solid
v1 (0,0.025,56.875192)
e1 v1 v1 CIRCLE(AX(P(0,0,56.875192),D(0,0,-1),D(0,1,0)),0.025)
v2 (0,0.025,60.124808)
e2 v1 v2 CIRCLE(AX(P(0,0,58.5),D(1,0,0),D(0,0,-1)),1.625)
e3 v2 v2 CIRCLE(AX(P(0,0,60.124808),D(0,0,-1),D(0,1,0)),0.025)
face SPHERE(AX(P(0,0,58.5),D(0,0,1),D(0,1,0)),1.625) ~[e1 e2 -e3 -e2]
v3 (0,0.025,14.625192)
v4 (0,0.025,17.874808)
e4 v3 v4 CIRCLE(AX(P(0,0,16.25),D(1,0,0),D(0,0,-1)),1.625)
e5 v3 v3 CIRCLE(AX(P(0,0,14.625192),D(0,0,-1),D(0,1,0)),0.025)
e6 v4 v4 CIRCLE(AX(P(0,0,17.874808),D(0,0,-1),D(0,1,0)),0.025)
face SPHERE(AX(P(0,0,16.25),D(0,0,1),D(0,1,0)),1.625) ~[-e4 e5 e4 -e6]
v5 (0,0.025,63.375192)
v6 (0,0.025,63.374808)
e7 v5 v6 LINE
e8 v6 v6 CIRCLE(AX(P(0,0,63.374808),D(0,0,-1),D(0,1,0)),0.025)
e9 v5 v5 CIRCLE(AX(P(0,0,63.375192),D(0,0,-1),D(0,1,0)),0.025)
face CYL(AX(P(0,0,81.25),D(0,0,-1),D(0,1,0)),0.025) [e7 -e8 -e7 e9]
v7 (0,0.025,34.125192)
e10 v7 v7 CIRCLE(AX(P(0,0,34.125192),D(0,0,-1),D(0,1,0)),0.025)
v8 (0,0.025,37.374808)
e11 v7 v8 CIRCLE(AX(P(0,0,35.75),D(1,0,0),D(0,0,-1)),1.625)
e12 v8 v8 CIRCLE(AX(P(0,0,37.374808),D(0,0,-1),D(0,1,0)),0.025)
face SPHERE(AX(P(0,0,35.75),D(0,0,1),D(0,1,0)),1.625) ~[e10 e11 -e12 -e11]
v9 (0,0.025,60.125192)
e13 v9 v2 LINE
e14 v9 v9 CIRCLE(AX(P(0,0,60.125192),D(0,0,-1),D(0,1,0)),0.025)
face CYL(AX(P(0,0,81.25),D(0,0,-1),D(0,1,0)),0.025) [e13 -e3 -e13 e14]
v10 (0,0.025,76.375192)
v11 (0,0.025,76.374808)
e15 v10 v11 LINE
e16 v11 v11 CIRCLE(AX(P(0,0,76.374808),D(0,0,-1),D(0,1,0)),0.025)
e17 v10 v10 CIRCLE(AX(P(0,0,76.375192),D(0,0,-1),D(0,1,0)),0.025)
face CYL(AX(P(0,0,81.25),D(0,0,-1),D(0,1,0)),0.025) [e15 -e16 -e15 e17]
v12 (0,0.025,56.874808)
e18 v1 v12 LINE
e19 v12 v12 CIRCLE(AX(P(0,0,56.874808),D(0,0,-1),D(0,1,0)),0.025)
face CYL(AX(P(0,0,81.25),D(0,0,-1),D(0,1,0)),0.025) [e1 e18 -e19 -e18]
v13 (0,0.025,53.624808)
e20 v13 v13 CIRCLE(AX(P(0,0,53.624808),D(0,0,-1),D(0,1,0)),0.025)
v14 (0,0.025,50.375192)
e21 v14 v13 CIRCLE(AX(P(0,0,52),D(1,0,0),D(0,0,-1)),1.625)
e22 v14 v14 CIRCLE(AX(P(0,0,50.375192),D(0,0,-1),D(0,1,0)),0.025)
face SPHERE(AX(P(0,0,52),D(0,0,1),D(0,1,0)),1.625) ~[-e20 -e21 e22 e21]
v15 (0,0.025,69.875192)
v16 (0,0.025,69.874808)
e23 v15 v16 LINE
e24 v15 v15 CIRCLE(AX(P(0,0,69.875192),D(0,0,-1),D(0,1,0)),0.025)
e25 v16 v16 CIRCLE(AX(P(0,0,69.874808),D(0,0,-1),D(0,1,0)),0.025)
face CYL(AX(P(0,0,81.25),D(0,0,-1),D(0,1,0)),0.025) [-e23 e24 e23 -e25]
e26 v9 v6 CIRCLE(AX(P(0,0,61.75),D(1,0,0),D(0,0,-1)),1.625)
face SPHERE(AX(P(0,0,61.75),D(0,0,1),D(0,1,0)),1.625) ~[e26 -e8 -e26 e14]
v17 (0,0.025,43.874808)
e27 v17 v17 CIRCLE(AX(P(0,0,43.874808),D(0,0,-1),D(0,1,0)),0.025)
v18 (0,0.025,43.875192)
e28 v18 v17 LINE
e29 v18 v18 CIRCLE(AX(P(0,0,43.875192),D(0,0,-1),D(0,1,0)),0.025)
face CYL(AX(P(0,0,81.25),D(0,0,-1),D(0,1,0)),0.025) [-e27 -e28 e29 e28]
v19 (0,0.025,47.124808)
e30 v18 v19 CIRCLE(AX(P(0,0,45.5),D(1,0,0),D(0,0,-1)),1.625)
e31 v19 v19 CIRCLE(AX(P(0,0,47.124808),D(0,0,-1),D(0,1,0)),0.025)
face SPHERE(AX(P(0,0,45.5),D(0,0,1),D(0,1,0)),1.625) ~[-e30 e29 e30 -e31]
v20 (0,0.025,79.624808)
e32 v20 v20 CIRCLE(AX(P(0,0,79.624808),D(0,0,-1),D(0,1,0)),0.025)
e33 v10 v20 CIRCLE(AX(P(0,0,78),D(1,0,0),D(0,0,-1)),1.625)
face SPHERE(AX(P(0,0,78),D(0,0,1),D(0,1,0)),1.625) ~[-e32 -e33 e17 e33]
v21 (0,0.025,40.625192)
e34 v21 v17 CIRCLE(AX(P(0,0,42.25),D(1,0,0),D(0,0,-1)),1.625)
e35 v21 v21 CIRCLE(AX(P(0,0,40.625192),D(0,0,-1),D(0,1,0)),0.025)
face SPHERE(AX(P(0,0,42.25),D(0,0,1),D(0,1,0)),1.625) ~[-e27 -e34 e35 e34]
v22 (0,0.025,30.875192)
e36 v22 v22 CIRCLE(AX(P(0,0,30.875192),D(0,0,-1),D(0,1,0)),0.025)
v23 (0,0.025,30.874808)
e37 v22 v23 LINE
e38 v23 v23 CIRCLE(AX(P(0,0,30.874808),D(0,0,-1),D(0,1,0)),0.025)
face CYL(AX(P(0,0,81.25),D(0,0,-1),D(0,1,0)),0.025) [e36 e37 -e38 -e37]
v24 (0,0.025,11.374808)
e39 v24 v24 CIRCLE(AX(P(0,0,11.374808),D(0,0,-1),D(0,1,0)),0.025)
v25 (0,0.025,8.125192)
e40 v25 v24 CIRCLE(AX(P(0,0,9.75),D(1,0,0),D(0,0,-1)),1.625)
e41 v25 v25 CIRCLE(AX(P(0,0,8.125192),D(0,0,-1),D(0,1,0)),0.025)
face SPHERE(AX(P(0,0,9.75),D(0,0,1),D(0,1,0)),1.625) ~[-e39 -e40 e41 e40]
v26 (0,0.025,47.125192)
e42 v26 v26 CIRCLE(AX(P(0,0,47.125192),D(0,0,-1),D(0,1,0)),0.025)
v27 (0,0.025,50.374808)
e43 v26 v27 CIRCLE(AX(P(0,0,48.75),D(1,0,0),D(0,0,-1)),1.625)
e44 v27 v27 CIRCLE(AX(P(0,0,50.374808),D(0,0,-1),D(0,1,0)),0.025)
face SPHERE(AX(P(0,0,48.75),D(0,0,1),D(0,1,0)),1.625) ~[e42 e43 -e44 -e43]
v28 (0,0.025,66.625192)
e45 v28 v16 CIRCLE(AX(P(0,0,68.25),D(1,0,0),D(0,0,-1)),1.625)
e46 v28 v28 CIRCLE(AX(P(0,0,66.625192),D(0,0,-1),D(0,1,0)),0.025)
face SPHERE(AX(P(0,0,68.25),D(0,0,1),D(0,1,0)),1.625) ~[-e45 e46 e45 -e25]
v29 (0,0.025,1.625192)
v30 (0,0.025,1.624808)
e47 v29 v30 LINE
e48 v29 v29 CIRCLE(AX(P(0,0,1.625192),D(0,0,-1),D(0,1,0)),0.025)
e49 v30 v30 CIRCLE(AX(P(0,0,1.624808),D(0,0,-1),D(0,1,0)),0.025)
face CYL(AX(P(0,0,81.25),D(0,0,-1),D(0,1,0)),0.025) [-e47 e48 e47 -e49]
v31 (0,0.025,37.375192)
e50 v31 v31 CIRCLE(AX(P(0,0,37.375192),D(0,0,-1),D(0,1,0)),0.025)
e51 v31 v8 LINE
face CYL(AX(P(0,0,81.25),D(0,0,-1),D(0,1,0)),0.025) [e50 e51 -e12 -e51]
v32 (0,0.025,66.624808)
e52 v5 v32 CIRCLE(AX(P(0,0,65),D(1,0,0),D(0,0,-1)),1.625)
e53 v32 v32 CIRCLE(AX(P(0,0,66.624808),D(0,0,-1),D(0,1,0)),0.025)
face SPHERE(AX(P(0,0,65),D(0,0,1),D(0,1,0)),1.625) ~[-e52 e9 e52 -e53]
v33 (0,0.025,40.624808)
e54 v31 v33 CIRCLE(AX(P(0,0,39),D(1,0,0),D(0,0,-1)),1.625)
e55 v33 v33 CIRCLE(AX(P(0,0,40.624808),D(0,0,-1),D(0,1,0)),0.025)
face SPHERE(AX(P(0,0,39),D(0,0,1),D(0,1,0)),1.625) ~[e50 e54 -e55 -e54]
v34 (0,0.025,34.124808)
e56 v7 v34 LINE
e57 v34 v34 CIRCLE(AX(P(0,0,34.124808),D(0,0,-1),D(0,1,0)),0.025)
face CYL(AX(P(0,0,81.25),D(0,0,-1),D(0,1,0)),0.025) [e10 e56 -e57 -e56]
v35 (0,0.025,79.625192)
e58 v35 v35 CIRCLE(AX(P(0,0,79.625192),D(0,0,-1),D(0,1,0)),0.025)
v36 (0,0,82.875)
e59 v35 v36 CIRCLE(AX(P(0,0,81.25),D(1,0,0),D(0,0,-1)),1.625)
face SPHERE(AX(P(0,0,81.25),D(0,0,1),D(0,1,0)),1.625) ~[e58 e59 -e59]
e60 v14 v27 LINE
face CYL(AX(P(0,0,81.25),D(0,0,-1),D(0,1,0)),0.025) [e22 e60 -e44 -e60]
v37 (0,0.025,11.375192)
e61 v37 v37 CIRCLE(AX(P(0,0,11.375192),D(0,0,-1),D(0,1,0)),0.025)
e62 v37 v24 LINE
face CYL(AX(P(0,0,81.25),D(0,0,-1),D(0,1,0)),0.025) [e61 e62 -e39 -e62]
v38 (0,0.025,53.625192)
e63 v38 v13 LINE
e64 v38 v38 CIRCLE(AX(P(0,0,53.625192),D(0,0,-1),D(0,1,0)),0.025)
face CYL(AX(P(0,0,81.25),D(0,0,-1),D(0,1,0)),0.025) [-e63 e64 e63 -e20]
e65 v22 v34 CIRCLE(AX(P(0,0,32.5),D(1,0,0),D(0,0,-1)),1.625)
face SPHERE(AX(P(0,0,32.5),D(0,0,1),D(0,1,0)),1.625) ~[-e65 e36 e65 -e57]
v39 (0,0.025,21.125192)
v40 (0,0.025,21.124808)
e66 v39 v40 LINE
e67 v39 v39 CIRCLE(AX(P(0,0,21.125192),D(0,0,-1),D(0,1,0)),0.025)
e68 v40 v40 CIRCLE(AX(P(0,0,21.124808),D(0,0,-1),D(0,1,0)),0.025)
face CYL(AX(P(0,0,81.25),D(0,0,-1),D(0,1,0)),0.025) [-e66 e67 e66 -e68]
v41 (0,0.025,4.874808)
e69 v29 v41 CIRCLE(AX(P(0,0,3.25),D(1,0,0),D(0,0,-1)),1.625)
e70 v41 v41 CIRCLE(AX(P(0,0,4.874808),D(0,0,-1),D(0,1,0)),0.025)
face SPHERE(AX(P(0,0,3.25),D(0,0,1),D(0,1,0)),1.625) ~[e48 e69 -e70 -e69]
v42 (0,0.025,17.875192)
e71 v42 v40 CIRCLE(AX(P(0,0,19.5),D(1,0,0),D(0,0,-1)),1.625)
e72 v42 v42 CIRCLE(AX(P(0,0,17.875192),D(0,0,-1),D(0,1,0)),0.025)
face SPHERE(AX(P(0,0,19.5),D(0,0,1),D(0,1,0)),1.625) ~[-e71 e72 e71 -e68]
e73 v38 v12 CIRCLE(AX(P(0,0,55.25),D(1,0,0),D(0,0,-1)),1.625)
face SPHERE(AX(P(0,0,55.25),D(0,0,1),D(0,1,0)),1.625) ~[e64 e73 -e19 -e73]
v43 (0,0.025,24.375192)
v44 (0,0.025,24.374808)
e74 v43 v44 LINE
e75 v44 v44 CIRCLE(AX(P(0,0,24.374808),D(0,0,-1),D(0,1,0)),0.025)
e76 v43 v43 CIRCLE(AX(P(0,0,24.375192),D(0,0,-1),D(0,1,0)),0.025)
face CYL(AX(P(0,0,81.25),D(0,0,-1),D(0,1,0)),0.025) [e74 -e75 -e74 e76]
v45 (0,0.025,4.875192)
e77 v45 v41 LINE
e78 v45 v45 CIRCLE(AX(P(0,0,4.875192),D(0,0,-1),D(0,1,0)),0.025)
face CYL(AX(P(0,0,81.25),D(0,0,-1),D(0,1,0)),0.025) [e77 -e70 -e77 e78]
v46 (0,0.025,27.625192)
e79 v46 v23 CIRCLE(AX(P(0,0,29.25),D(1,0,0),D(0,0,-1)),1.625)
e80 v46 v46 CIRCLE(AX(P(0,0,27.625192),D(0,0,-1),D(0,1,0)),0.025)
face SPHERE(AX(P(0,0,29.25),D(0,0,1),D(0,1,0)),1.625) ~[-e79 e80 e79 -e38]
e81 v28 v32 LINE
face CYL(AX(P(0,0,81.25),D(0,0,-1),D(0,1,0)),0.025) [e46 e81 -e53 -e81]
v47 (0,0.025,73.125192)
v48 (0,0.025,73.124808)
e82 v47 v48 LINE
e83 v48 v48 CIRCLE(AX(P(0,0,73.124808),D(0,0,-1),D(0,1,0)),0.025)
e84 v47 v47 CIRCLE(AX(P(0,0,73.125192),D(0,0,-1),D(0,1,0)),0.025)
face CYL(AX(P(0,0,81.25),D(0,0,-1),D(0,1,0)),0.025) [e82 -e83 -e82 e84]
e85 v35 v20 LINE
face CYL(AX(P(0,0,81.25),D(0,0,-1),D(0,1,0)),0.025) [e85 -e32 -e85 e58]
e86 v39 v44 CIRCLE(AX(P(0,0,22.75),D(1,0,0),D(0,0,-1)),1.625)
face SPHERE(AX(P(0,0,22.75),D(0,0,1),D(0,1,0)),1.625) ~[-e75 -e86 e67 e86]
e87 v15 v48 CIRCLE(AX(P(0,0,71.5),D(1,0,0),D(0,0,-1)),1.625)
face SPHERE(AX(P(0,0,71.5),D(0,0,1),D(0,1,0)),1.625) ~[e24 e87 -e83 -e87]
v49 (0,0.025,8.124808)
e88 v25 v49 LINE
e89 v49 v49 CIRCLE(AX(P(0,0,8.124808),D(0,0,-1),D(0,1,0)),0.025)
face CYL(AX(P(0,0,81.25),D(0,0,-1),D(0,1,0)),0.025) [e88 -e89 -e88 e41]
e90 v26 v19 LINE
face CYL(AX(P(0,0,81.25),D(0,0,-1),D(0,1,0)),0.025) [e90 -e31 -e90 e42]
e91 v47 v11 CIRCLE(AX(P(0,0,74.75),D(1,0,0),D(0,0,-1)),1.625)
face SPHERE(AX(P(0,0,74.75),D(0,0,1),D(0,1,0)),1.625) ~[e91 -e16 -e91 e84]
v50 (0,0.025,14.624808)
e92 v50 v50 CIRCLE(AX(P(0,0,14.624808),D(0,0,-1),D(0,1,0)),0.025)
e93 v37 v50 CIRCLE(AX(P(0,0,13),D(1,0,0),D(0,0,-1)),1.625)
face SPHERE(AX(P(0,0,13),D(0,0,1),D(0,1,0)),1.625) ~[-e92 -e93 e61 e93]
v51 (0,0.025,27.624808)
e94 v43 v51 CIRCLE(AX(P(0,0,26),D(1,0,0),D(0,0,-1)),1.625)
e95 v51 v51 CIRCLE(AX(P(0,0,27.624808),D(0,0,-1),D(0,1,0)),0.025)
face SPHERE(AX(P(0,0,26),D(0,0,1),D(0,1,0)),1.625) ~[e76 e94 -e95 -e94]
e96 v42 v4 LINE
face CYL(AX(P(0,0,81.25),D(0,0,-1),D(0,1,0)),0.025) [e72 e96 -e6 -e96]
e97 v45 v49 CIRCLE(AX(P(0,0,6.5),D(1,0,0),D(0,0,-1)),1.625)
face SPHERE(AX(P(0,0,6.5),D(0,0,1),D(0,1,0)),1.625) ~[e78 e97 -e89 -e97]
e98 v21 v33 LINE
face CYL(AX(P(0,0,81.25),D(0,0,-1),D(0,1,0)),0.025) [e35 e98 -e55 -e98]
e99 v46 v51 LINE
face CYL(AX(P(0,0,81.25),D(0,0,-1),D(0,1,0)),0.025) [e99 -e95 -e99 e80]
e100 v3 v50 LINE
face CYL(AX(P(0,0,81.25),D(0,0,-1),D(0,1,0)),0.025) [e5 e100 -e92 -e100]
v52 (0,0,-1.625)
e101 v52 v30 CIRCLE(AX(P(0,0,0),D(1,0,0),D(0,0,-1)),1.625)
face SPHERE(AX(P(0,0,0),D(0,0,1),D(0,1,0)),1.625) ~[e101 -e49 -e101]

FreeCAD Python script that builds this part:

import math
import FreeCAD as App
import Part
import Sketcher
Q = App.Units.Quantity

doc = App.newDocument("Part")
body = doc.addObject("PartDesign::Body", "Body")

# Sketch on YZ plane
sketch1 = body.newObject("Sketcher::SketchObject", "Sketch")
sketch1.AttachmentSupport = (doc.getObject("YZ_Plane"), [""])
sketch1.MapMode = "FlatFace"
sketch1.addGeometry([
    Part.LineSegment(App.Vector(0, 81.25, 0), App.Vector(0, 0, 0)),
    Part.LineSegment(App.Vector(0, 0, 0), App.Vector(0.025, 0, 0)),
    Part.LineSegment(App.Vector(0.025, 0, 0), App.Vector(0.025, 81.25, 0)),
    Part.LineSegment(App.Vector(0.025, 81.25, 0), App.Vector(0, 81.25, 0)),
], False)
sketch1.addConstraint([
    Sketcher.Constraint("Coincident", 0, 2, 1, 1),
    Sketcher.Constraint("Coincident", 1, 2, 2, 1),
    Sketcher.Constraint("Coincident", 2, 2, 3, 1),
    Sketcher.Constraint("Coincident", 3, 2, 0, 1),
    Sketcher.Constraint("Vertical", 0),
    Sketcher.Constraint("Horizontal", 1),
    Sketcher.Constraint("Vertical", 2),
    Sketcher.Constraint("Horizontal", 3),
    Sketcher.Constraint("Coincident", 0, 2, -1, 1),
    Sketcher.Constraint("DistanceY", 0, 2, 0, 1, Q("81.25 mm")),
    Sketcher.Constraint("DistanceX", 1, 1, 1, 2, Q("0.025 mm")),
])
revolution = body.newObject("PartDesign::Revolution", "Revolution")
revolution.Profile = sketch1
revolution.ReferenceAxis = (sketch1, ["V_Axis"])
revolution.Angle = 360

# Sketch on YZ plane
sketch2 = body.newObject("Sketcher::SketchObject", "Sketch001")
sketch2.AttachmentSupport = (doc.getObject("YZ_Plane"), [""])
sketch2.MapMode = "FlatFace"
sketch2.addGeometry([
    Part.LineSegment(App.Vector(0, 1.6, 0), App.Vector(0, -1.6, 0)),
    Part.ArcOfCircle(Part.Circle(App.Vector(0, 0, 0), App.Vector(0, 0, 1), 1.6), math.radians(-90), math.radians(90)),
], False)
sketch2.addConstraint([
    Sketcher.Constraint("Coincident", 0, 1, 1, 2),
    Sketcher.Constraint("Coincident", 1, 1, 0, 2),
    Sketcher.Constraint("Vertical", 0),
    Sketcher.Constraint("Coincident", 1, 3, -1, 1),
    Sketcher.Constraint("PointOnObject", 0, 1, -2),
    Sketcher.Constraint("Radius", 1, Q("1.625 mm")),
])
revolution2 = body.newObject("PartDesign::Revolution", "Revolution001")
revolution2.Profile = sketch2
revolution2.ReferenceAxis = (sketch2, ["V_Axis"])
revolution2.Angle = 360
doc.recompute()

linearpattern = body.newObject("PartDesign::LinearPattern", "LinearPattern")
linearpattern.Originals = [revolution2]
linearpattern.Direction = (doc.getObject("Z_Axis"), [""])
linearpattern.Mode = "offset"
linearpattern.Offset = 3.25
linearpattern.Occurrences = 26
body.Tip = linearpattern

doc.recompute()
